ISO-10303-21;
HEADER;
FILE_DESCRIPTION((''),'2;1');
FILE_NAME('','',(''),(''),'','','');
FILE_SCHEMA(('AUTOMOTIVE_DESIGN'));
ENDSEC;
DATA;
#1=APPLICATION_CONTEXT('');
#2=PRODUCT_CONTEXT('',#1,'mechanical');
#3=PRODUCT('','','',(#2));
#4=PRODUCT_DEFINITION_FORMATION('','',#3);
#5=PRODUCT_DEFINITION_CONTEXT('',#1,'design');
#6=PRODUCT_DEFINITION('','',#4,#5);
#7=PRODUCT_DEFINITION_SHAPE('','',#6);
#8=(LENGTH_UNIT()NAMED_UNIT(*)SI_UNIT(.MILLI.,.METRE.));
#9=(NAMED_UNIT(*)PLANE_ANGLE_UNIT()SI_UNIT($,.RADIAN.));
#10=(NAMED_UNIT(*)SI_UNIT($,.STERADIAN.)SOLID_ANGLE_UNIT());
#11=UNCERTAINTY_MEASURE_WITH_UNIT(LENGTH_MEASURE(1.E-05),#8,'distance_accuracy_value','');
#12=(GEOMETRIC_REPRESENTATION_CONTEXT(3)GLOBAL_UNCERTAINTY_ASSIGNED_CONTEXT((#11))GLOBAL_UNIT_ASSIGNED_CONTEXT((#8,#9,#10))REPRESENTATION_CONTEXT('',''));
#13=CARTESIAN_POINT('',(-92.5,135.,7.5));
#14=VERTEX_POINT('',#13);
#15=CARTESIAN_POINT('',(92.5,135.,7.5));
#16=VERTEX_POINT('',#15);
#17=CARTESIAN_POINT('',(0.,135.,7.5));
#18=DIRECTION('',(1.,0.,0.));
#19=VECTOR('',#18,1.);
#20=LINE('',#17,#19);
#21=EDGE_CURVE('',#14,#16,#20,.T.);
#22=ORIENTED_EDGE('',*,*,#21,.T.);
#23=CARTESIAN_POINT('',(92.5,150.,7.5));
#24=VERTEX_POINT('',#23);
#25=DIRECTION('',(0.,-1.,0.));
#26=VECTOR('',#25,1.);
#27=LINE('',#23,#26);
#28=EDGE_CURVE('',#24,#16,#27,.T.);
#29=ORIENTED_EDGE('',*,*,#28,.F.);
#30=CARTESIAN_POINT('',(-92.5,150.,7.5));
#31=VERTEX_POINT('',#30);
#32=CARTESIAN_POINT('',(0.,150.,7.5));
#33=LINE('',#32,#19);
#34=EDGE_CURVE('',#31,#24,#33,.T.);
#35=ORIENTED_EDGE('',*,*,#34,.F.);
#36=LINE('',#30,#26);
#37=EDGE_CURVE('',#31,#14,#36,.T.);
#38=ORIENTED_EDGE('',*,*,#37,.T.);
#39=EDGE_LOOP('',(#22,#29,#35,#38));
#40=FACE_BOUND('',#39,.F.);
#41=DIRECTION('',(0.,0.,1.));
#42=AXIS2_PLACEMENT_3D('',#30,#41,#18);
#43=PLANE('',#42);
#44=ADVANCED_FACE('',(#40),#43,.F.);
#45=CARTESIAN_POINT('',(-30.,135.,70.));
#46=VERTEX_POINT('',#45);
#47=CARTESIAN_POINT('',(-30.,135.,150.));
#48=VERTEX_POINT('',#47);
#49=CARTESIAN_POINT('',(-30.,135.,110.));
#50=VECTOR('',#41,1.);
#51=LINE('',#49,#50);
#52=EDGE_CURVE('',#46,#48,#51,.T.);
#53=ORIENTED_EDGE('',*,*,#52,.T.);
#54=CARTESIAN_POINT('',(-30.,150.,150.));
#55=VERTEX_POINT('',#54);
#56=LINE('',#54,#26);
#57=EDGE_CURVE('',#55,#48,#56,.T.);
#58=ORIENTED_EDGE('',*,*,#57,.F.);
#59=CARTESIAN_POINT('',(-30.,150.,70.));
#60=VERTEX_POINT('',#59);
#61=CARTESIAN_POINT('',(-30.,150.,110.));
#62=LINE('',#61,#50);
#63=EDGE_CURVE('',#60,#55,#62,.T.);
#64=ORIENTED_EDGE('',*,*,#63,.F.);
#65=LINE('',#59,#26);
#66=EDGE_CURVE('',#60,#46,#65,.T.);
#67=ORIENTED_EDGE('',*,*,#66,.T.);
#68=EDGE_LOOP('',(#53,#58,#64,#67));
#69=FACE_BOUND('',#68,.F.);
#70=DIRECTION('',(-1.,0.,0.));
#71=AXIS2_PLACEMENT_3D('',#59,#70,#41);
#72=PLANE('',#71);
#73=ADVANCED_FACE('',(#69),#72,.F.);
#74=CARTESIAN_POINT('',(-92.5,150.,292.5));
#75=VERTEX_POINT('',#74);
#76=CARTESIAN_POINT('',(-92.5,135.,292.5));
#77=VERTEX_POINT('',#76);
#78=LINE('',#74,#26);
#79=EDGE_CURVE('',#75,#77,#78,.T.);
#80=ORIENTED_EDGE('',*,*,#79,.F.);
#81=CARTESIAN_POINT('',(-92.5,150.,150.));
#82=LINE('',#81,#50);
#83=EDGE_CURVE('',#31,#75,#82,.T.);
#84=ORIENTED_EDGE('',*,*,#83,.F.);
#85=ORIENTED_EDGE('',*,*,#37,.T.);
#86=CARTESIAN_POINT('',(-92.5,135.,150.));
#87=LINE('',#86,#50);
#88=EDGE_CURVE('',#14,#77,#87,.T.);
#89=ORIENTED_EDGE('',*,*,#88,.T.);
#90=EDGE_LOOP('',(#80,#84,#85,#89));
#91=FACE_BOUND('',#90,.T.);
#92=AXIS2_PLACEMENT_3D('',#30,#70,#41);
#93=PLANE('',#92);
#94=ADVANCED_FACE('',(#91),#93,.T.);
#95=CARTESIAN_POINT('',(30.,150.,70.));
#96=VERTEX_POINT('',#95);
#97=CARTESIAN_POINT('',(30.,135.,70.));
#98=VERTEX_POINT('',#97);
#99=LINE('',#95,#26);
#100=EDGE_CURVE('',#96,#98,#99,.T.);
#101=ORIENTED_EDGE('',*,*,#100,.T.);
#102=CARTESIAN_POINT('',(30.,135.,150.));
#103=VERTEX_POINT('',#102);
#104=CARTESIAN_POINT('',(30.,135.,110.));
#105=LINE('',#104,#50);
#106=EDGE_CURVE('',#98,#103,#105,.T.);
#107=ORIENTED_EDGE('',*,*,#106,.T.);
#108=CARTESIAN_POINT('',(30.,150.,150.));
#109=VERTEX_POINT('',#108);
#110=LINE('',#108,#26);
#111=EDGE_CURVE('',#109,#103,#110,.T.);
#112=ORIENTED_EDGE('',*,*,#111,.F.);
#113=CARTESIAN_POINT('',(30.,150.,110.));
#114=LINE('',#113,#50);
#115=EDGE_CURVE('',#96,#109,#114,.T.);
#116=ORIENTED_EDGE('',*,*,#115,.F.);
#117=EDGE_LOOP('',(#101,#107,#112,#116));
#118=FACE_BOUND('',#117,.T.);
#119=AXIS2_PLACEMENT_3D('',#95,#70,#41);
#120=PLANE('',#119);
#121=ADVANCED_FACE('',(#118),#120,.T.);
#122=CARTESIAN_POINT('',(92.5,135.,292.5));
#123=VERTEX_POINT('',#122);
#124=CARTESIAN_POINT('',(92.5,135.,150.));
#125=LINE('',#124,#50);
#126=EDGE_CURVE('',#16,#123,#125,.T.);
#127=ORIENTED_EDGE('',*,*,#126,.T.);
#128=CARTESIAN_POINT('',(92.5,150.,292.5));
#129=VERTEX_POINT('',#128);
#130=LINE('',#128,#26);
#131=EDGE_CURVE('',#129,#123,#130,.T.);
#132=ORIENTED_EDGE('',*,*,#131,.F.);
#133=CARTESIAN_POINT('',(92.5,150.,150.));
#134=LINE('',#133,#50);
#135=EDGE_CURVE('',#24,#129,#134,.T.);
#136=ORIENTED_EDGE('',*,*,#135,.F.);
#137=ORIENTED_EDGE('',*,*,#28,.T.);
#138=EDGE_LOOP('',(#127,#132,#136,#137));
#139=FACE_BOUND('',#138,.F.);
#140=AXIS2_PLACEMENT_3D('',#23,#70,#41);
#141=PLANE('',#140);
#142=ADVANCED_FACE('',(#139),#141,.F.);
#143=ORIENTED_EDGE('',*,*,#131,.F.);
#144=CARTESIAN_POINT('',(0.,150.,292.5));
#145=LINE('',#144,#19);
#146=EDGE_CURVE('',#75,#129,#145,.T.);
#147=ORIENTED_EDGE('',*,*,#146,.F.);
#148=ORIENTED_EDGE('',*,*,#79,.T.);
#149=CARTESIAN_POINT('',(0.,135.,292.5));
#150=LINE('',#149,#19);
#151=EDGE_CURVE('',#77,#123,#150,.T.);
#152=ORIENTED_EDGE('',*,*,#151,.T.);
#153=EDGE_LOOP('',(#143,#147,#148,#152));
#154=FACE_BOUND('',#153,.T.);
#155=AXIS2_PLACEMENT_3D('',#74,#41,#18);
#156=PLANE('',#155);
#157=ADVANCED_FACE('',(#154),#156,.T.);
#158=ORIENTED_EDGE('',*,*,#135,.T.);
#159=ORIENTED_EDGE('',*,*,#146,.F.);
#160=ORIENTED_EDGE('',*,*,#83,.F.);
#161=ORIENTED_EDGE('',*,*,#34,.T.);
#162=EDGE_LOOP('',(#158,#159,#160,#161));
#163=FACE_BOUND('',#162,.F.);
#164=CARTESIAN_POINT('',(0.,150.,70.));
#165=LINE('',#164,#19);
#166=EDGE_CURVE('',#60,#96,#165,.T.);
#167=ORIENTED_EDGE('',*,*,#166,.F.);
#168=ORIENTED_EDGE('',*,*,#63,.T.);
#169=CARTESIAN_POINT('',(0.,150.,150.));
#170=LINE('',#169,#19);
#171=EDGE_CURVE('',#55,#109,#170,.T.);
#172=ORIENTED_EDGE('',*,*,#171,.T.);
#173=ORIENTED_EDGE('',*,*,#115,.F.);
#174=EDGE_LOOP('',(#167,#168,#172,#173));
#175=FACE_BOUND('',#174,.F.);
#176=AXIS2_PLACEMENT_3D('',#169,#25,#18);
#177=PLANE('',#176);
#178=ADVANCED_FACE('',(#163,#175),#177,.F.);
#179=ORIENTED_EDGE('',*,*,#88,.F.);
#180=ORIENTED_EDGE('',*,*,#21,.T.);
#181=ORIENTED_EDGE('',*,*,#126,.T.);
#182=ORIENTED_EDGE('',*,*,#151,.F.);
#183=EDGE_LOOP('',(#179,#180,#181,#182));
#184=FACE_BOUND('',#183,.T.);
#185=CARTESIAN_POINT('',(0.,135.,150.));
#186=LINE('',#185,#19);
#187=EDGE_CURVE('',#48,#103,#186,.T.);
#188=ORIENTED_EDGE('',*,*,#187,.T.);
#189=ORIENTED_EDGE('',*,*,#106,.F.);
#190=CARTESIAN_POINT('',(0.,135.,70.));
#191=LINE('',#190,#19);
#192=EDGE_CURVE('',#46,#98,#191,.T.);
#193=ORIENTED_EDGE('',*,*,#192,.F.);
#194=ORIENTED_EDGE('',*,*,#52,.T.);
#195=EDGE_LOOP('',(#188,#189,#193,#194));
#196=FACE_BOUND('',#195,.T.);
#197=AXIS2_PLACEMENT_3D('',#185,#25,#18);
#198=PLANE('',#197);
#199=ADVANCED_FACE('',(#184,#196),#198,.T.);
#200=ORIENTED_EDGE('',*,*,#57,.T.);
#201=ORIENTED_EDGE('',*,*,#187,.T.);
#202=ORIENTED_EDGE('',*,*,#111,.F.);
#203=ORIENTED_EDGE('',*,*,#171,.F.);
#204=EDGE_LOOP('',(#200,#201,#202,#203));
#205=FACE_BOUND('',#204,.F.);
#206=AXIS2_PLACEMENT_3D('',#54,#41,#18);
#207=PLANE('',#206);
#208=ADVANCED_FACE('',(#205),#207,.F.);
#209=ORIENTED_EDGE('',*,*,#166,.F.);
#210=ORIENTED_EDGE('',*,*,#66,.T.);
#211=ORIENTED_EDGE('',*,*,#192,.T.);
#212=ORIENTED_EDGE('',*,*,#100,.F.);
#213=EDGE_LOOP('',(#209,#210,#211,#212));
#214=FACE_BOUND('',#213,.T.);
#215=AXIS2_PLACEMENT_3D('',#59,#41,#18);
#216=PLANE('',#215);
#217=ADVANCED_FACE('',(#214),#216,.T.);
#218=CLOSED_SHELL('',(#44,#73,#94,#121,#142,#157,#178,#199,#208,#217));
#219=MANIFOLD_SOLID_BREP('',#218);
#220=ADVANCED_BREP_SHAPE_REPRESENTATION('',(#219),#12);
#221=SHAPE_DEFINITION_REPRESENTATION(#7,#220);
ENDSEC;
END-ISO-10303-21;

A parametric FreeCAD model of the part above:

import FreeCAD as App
import Part
import Sketcher


def add_polygon(sketch, points):
    """Adds a closed chain of lines whose ends are joined by coincident constraints."""
    first, n = sketch.GeometryCount, len(points)
    for a, b in zip(points, points[1:] + points[:1]):
        sketch.addGeometry(Part.LineSegment(App.Vector(*a, 0), App.Vector(*b, 0)), False)
    for i in range(n):
        sketch.addConstraint(Sketcher.Constraint("Coincident", first + i, 2, first + (i + 1) % n, 1))

doc = App.newDocument("Part")
body = doc.addObject("PartDesign::Body", "Body")

# Sketch on XZ plane
sketch1 = doc.addObject("Sketcher::SketchObject", "Sketch")
body.addObject(sketch1)
sketch1.AttachmentSupport = (doc.XZ_Plane, [""])
sketch1.MapMode = "FlatFace"
sketch1.AttachmentOffset = App.Placement(App.Vector(0, 0, -150), App.Rotation())
add_polygon(sketch1, [(-92, 292), (-92, 8), (92, 8), (92, 292)])  # lines 0-3
sketch1.addConstraint([
    Sketcher.Constraint("Vertical", 0),
    Sketcher.Constraint("Horizontal", 1),
    Sketcher.Constraint("Vertical", 2),
    Sketcher.Constraint("Horizontal", 3),
    Sketcher.Constraint("DistanceX", 1, 1, 1, 2, 185.0),
    Sketcher.Constraint("DistanceY", 0, 2, 0, 1, 285.0),
    Sketcher.Constraint("DistanceX", 0, 2, -1, 1, 92.5),
    Sketcher.Constraint("DistanceY", -1, 1, 0, 2, 7.5),
])
pad1 = doc.addObject("PartDesign::Pad", "Pad")
body.addObject(pad1)
pad1.Profile = sketch1
pad1.Length = 15

# Sketch on XZ plane
sketch2 = doc.addObject("Sketcher::SketchObject", "Sketch001")
body.addObject(sketch2)
sketch2.AttachmentSupport = (doc.XZ_Plane, [""])
sketch2.MapMode = "FlatFace"
sketch2.AttachmentOffset = App.Placement(App.Vector(0, 0, -150), App.Rotation())
add_polygon(sketch2, [(-30, 150), (-30, 70), (30, 70), (30, 150)])  # lines 0-3
sketch2.addConstraint([
    Sketcher.Constraint("Vertical", 0),
    Sketcher.Constraint("Horizontal", 1),
    Sketcher.Constraint("Vertical", 2),
    Sketcher.Constraint("Horizontal", 3),
    Sketcher.Constraint("DistanceX", 1, 1, 1, 2, 60.0),
    Sketcher.Constraint("DistanceY", 0, 2, 0, 1, 80.0),
    Sketcher.Constraint("DistanceX", 0, 2, -1, 1, 30.0),
    Sketcher.Constraint("DistanceY", -1, 1, 0, 2, 70.0),
])
pocket1 = doc.addObject("PartDesign::Pocket", "Pocket")
body.addObject(pocket1)
pocket1.Profile = sketch2
pocket1.Type = "ThroughAll"
pocket1.Reversed = True

doc.recompute()
